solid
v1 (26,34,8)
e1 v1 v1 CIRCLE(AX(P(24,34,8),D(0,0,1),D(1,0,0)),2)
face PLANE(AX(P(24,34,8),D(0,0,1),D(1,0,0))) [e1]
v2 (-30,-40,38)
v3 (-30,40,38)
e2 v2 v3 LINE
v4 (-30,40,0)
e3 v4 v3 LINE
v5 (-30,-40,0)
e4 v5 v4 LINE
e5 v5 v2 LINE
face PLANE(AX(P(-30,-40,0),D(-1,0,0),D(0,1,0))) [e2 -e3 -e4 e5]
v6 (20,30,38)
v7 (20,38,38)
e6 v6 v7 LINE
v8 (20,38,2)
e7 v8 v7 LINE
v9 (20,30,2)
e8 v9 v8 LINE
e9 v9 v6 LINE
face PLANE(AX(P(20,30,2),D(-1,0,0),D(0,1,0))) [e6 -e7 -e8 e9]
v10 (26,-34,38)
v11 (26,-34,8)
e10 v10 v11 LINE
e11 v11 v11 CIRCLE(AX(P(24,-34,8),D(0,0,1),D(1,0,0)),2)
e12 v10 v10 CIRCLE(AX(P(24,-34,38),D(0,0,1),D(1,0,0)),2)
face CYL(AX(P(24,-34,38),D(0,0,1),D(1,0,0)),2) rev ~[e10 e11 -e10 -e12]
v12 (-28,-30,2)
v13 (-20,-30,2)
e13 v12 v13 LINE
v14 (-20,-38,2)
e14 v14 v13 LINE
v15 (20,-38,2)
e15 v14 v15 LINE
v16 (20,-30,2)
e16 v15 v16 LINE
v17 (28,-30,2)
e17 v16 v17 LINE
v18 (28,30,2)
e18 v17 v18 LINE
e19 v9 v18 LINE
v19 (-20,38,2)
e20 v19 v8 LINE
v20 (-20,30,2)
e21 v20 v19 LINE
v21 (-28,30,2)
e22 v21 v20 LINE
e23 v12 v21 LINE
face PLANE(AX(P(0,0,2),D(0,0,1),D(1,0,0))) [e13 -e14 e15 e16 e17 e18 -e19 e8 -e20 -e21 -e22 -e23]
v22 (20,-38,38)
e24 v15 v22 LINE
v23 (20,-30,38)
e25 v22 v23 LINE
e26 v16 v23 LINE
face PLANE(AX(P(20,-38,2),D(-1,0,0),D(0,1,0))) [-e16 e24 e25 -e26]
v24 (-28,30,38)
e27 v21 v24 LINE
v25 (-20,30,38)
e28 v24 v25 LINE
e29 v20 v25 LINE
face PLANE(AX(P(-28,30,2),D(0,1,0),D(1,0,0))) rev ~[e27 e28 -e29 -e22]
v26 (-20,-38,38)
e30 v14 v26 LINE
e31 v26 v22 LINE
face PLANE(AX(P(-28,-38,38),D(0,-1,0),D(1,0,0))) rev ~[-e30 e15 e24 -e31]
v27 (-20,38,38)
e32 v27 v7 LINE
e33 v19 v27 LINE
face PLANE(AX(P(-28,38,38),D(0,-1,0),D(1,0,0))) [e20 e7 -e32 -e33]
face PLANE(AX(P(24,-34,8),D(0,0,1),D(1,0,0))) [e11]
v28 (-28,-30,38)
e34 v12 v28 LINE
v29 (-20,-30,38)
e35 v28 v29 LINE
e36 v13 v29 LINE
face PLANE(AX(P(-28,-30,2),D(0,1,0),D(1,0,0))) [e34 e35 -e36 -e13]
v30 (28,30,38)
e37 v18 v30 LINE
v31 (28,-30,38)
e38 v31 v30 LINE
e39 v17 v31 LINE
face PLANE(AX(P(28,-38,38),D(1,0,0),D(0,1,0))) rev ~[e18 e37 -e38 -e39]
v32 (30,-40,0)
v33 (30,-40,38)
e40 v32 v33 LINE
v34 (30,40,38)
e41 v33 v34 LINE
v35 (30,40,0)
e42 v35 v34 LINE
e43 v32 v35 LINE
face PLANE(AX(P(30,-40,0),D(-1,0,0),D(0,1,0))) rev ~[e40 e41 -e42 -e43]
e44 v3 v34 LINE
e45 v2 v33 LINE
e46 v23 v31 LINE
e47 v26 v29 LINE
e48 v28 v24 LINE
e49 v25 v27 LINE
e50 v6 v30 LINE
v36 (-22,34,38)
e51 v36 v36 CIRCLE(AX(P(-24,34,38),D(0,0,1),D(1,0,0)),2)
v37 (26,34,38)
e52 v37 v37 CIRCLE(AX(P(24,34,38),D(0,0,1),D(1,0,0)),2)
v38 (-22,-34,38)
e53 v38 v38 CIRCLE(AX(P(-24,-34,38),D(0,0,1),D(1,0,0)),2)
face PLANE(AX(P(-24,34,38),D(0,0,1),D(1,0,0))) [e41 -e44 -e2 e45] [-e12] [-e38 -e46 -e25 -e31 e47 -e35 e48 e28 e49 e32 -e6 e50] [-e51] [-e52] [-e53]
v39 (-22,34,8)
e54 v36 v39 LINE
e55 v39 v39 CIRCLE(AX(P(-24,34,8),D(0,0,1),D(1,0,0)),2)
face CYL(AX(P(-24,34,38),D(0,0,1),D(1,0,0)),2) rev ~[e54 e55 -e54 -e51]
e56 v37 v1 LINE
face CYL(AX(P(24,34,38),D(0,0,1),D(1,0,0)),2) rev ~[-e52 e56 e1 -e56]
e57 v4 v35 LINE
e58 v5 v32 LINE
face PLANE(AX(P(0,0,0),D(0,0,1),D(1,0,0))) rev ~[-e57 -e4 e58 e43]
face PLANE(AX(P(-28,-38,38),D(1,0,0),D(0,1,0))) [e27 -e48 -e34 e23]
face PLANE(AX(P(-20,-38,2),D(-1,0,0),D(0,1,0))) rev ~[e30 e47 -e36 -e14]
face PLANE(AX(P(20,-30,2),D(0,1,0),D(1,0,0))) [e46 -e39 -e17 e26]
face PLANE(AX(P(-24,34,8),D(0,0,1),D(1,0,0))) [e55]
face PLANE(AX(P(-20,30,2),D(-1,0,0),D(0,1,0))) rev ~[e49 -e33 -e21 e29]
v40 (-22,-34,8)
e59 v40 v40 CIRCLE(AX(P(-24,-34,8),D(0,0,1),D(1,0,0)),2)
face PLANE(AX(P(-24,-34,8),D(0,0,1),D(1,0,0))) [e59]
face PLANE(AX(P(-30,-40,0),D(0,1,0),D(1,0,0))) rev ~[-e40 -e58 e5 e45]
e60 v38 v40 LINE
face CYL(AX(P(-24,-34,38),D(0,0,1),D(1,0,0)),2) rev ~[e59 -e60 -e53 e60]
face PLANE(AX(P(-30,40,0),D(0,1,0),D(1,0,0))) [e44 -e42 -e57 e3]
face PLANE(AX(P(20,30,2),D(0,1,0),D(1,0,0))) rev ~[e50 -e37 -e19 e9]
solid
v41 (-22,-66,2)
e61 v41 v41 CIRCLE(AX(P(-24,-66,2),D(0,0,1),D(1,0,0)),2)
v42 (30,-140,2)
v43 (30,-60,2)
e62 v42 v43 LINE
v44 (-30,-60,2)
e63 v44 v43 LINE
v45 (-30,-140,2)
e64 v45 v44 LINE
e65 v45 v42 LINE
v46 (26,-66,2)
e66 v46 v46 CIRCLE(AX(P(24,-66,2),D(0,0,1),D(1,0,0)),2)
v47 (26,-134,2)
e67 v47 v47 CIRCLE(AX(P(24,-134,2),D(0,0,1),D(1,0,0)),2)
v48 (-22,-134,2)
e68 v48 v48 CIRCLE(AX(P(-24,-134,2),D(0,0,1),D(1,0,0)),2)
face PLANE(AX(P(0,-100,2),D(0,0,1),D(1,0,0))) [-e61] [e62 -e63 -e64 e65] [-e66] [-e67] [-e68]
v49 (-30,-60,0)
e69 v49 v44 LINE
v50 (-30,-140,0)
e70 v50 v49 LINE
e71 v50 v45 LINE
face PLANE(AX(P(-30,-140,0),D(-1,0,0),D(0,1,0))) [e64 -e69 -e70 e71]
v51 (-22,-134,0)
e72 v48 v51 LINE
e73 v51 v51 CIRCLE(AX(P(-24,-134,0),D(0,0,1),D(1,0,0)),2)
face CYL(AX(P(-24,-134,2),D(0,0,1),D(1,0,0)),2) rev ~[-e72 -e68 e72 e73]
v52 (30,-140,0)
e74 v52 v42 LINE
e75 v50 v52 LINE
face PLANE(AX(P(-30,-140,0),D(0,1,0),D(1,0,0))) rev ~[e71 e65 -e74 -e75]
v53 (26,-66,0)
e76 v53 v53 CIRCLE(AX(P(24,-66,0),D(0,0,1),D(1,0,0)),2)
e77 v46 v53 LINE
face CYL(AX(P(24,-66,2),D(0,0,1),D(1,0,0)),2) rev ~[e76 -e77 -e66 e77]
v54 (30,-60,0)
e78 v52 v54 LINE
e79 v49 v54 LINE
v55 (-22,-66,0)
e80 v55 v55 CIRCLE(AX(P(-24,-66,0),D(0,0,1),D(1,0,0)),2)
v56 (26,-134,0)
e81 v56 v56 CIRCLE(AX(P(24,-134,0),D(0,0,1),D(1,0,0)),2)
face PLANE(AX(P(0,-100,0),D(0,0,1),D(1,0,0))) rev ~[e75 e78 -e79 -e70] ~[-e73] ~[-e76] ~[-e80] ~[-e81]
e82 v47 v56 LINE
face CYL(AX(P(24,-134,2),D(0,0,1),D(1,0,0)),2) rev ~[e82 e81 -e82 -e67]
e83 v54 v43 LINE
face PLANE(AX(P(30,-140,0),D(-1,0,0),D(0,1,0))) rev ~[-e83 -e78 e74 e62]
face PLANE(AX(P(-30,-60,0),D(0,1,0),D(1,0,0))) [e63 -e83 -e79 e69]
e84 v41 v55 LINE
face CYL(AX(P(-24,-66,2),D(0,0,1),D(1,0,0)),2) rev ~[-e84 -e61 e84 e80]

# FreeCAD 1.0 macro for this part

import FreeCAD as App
import Part
import Sketcher
from FreeCAD import Vector

doc = App.newDocument("Part")
body = doc.addObject("PartDesign::Body", "Body")

sketch1 = body.newObject("Sketcher::SketchObject", "Sketch")
sketch1.AttachmentSupport = (doc.getObject("XY_Plane"), [""])
sketch1.MapMode = "FlatFace"
sketch1.addGeometry([
    Part.LineSegment(Vector(-30, 40, 0), Vector(-30, -40, 0)),
    Part.LineSegment(Vector(-30, -40, 0), Vector(30, -40, 0)),
    Part.LineSegment(Vector(30, -40, 0), Vector(30, 40, 0)),
    Part.LineSegment(Vector(30, 40, 0), Vector(-30, 40, 0)),
], False)
sketch1.addConstraint([
    Sketcher.Constraint("Coincident", 0, 2, 1, 1),
    Sketcher.Constraint("Coincident", 1, 2, 2, 1),
    Sketcher.Constraint("Coincident", 2, 2, 3, 1),
    Sketcher.Constraint("Coincident", 3, 2, 0, 1),
    Sketcher.Constraint("Vertical", 0),
    Sketcher.Constraint("Horizontal", 1),
    Sketcher.Constraint("Vertical", 2),
    Sketcher.Constraint("Horizontal", 3),
    Sketcher.Constraint("Symmetric", 0, 2, 2, 2, -1, 1),
    Sketcher.Constraint("DistanceX", 1, 1, 1, 2, 60.0),
    Sketcher.Constraint("DistanceY", 0, 2, 0, 1, 80.0),
])
pad1 = body.newObject("PartDesign::Pad", "Pad")
pad1.Profile = sketch1
pad1.Length = 38

sketch2 = body.newObject("Sketcher::SketchObject", "Sketch001")
sketch2.AttachmentSupport = (doc.getObject("XY_Plane"), [""])
sketch2.MapMode = "FlatFace"
sketch2.AttachmentOffset = App.Placement(Vector(0, 0, 38), App.Rotation())
sketch2.addGeometry([
    Part.LineSegment(Vector(-28, 38, 0), Vector(-28, -38, 0)),
    Part.LineSegment(Vector(-28, -38, 0), Vector(28, -38, 0)),
    Part.LineSegment(Vector(28, -38, 0), Vector(28, 38, 0)),
    Part.LineSegment(Vector(28, 38, 0), Vector(-28, 38, 0)),
], False)
sketch2.addConstraint([
    Sketcher.Constraint("Coincident", 0, 2, 1, 1),
    Sketcher.Constraint("Coincident", 1, 2, 2, 1),
    Sketcher.Constraint("Coincident", 2, 2, 3, 1),
    Sketcher.Constraint("Coincident", 3, 2, 0, 1),
    Sketcher.Constraint("Vertical", 0),
    Sketcher.Constraint("Horizontal", 1),
    Sketcher.Constraint("Vertical", 2),
    Sketcher.Constraint("Horizontal", 3),
    Sketcher.Constraint("Symmetric", 0, 2, 2, 2, -1, 1),
    Sketcher.Constraint("DistanceX", 1, 1, 1, 2, 56.0),
    Sketcher.Constraint("DistanceY", 0, 2, 0, 1, 76.0),
])
pocket1 = body.newObject("PartDesign::Pocket", "Pocket")
pocket1.Profile = sketch2
pocket1.Length = 36

sketch3 = body.newObject("Sketcher::SketchObject", "Sketch002")
sketch3.AttachmentSupport = (doc.getObject("XY_Plane"), [""])
sketch3.MapMode = "FlatFace"
sketch3.AttachmentOffset = App.Placement(Vector(0, 0, 2), App.Rotation())
sketch3.addGeometry([
    Part.LineSegment(Vector(-28, 38, 0), Vector(-28, 30, 0)),
    Part.LineSegment(Vector(-28, 30, 0), Vector(-20, 30, 0)),
    Part.LineSegment(Vector(-20, 30, 0), Vector(-20, 38, 0)),
    Part.LineSegment(Vector(-20, 38, 0), Vector(-28, 38, 0)),
    Part.LineSegment(Vector(20, 38, 0), Vector(20, 30, 0)),
    Part.LineSegment(Vector(20, 30, 0), Vector(28, 30, 0)),
    Part.LineSegment(Vector(28, 30, 0), Vector(28, 38, 0)),
    Part.LineSegment(Vector(28, 38, 0), Vector(20, 38, 0)),
    Part.LineSegment(Vector(20, -30, 0), Vector(20, -38, 0)),
    Part.LineSegment(Vector(20, -38, 0), Vector(28, -38, 0)),
    Part.LineSegment(Vector(28, -38, 0), Vector(28, -30, 0)),
    Part.LineSegment(Vector(28, -30, 0), Vector(20, -30, 0)),
    Part.LineSegment(Vector(-28, -30, 0), Vector(-28, -38, 0)),
    Part.LineSegment(Vector(-28, -38, 0), Vector(-20, -38, 0)),
    Part.LineSegment(Vector(-20, -38, 0), Vector(-20, -30, 0)),
    Part.LineSegment(Vector(-20, -30, 0), Vector(-28, -30, 0)),
], False)
sketch3.addConstraint([
    Sketcher.Constraint("Coincident", 0, 2, 1, 1),
    Sketcher.Constraint("Coincident", 1, 2, 2, 1),
    Sketcher.Constraint("Coincident", 2, 2, 3, 1),
    Sketcher.Constraint("Coincident", 3, 2, 0, 1),
    Sketcher.Constraint("Coincident", 4, 2, 5, 1),
    Sketcher.Constraint("Coincident", 5, 2, 6, 1),
    Sketcher.Constraint("Coincident", 6, 2, 7, 1),
    Sketcher.Constraint("Coincident", 7, 2, 4, 1),
    Sketcher.Constraint("Coincident", 8, 2, 9, 1),
    Sketcher.Constraint("Coincident", 9, 2, 10, 1),
    Sketcher.Constraint("Coincident", 10, 2, 11, 1),
    Sketcher.Constraint("Coincident", 11, 2, 8, 1),
    Sketcher.Constraint("Coincident", 12, 2, 13, 1),
    Sketcher.Constraint("Coincident", 13, 2, 14, 1),
    Sketcher.Constraint("Coincident", 14, 2, 15, 1),
    Sketcher.Constraint("Coincident", 15, 2, 12, 1),
    Sketcher.Constraint("Vertical", 0),
    Sketcher.Constraint("Horizontal", 1),
    Sketcher.Constraint("Vertical", 2),
    Sketcher.Constraint("Horizontal", 3),
    Sketcher.Constraint("Vertical", 4),
    Sketcher.Constraint("Horizontal", 5),
    Sketcher.Constraint("Vertical", 6),
    Sketcher.Constraint("Horizontal", 7),
    Sketcher.Constraint("Vertical", 8),
    Sketcher.Constraint("Horizontal", 9),
    Sketcher.Constraint("Vertical", 10),
    Sketcher.Constraint("Horizontal", 11),
    Sketcher.Constraint("Vertical", 12),
    Sketcher.Constraint("Horizontal", 13),
    Sketcher.Constraint("Vertical", 14),
    Sketcher.Constraint("Horizontal", 15),
    Sketcher.Constraint("Symmetric", 2, 2, 8, 2, -1, 1),
    Sketcher.Constraint("Symmetric", 0, 2, 10, 2, -1, 1),
    Sketcher.Constraint("Symmetric", 6, 2, 12, 2, -1, 1),
    Sketcher.Constraint("Symmetric", 4, 2, 14, 2, -1, 1),
    Sketcher.Constraint("Symmetric", 1, 2, 4, 2, -2),
    Sketcher.Constraint("Symmetric", 3, 2, 6, 2, -2),
    Sketcher.Constraint("Equal", 15, 0),
    Sketcher.Constraint("DistanceX", 1, 1, 1, 2, 8.0),
    Sketcher.Constraint("DistanceX", 0, 2, -1, 1, 28.0),
    Sketcher.Constraint("DistanceY", -1, 1, 0, 2, 30.0),
])
pad2 = body.newObject("PartDesign::Pad", "Pad001")
pad2.Profile = sketch3
pad2.Length = 36

sketch4 = body.newObject("Sketcher::SketchObject", "Sketch003")
sketch4.AttachmentSupport = (doc.getObject("XY_Plane"), [""])
sketch4.MapMode = "FlatFace"
sketch4.AttachmentOffset = App.Placement(Vector(0, 0, 38), App.Rotation())
sketch4.addGeometry([
    Part.Circle(Vector(-24, 34, 0), Vector(0, 0, 1), 2),
    Part.Circle(Vector(24, 34, 0), Vector(0, 0, 1), 2),
    Part.Circle(Vector(24, -34, 0), Vector(0, 0, 1), 2),
    Part.Circle(Vector(-24, -34, 0), Vector(0, 0, 1), 2),
], False)
sketch4.addConstraint([
    Sketcher.Constraint("Equal", 0, 1),
    Sketcher.Constraint("Equal", 1, 2),
    Sketcher.Constraint("Equal", 2, 3),
    Sketcher.Constraint("Symmetric", 0, 3, 2, 3, -1, 1),
    Sketcher.Constraint("Symmetric", 1, 3, 3, 3, -1, 1),
    Sketcher.Constraint("Symmetric", 0, 3, 1, 3, -2),
    Sketcher.Constraint("Diameter", 0, 4.0),
    Sketcher.Constraint("DistanceX", 0, 3, -1, 1, 24.0),
    Sketcher.Constraint("DistanceY", -1, 1, 0, 3, 34.0),
])
pocket2 = body.newObject("PartDesign::Pocket", "Pocket001")
pocket2.Profile = sketch4
pocket2.Length = 30
body2 = doc.addObject("PartDesign::Body", "Body001")

sketch5 = body2.newObject("Sketcher::SketchObject", "Sketch004")
sketch5.AttachmentSupport = (doc.getObject("XY_Plane001"), [""])
sketch5.MapMode = "FlatFace"
sketch5.addGeometry([
    Part.LineSegment(Vector(-30, -60, 0), Vector(-30, -140, 0)),
    Part.LineSegment(Vector(-30, -140, 0), Vector(30, -140, 0)),
    Part.LineSegment(Vector(30, -140, 0), Vector(30, -60, 0)),
    Part.LineSegment(Vector(30, -60, 0), Vector(-30, -60, 0)),
], False)
sketch5.addConstraint([
    Sketcher.Constraint("Coincident", 0, 2, 1, 1),
    Sketcher.Constraint("Coincident", 1, 2, 2, 1),
    Sketcher.Constraint("Coincident", 2, 2, 3, 1),
    Sketcher.Constraint("Coincident", 3, 2, 0, 1),
    Sketcher.Constraint("Vertical", 0),
    Sketcher.Constraint("Horizontal", 1),
    Sketcher.Constraint("Vertical", 2),
    Sketcher.Constraint("Horizontal", 3),
    Sketcher.Constraint("DistanceX", 1, 1, 1, 2, 60.0),
    Sketcher.Constraint("DistanceY", 0, 2, 0, 1, 80.0),
    Sketcher.Constraint("DistanceX", 0, 2, -1, 1, 30.0),
    Sketcher.Constraint("DistanceY", 0, 2, -1, 1, 140.0),
])
pad3 = body2.newObject("PartDesign::Pad", "Pad002")
pad3.Profile = sketch5
pad3.Length = 2

sketch6 = body2.newObject("Sketcher::SketchObject", "Sketch005")
sketch6.AttachmentSupport = (doc.getObject("XY_Plane001"), [""])
sketch6.MapMode = "FlatFace"
sketch6.AttachmentOffset = App.Placement(Vector(0, 0, 2), App.Rotation())
sketch6.addGeometry([
    Part.Circle(Vector(-24, -134, 0), Vector(0, 0, 1), 2),
    Part.Circle(Vector(-24, -66, 0), Vector(0, 0, 1), 2),
    Part.Circle(Vector(24, -66, 0), Vector(0, 0, 1), 2),
    Part.Circle(Vector(24, -134, 0), Vector(0, 0, 1), 2),
], False)
sketch6.addConstraint([
    Sketcher.Constraint("Equal", 0, 1),
    Sketcher.Constraint("Equal", 1, 2),
    Sketcher.Constraint("Equal", 2, 3),
    Sketcher.Constraint("Symmetric", 1, 3, 2, 3, -2),
    Sketcher.Constraint("Symmetric", 0, 3, 3, 3, -2),
    Sketcher.Constraint("Vertical", 0, 3, 1, 3),
    Sketcher.Constraint("Diameter", 0, 4.0),
    Sketcher.Constraint("DistanceX", 0, 3, -1, 1, 24.0),
    Sketcher.Constraint("DistanceY", 0, 3, -1, 1, 134.0),
    Sketcher.Constraint("DistanceY", 1, 3, -1, 1, 66.0),
])
pocket3 = body2.newObject("PartDesign::Pocket", "Pocket002")
pocket3.Profile = sketch6
pocket3.Length = 2

doc.recompute()
